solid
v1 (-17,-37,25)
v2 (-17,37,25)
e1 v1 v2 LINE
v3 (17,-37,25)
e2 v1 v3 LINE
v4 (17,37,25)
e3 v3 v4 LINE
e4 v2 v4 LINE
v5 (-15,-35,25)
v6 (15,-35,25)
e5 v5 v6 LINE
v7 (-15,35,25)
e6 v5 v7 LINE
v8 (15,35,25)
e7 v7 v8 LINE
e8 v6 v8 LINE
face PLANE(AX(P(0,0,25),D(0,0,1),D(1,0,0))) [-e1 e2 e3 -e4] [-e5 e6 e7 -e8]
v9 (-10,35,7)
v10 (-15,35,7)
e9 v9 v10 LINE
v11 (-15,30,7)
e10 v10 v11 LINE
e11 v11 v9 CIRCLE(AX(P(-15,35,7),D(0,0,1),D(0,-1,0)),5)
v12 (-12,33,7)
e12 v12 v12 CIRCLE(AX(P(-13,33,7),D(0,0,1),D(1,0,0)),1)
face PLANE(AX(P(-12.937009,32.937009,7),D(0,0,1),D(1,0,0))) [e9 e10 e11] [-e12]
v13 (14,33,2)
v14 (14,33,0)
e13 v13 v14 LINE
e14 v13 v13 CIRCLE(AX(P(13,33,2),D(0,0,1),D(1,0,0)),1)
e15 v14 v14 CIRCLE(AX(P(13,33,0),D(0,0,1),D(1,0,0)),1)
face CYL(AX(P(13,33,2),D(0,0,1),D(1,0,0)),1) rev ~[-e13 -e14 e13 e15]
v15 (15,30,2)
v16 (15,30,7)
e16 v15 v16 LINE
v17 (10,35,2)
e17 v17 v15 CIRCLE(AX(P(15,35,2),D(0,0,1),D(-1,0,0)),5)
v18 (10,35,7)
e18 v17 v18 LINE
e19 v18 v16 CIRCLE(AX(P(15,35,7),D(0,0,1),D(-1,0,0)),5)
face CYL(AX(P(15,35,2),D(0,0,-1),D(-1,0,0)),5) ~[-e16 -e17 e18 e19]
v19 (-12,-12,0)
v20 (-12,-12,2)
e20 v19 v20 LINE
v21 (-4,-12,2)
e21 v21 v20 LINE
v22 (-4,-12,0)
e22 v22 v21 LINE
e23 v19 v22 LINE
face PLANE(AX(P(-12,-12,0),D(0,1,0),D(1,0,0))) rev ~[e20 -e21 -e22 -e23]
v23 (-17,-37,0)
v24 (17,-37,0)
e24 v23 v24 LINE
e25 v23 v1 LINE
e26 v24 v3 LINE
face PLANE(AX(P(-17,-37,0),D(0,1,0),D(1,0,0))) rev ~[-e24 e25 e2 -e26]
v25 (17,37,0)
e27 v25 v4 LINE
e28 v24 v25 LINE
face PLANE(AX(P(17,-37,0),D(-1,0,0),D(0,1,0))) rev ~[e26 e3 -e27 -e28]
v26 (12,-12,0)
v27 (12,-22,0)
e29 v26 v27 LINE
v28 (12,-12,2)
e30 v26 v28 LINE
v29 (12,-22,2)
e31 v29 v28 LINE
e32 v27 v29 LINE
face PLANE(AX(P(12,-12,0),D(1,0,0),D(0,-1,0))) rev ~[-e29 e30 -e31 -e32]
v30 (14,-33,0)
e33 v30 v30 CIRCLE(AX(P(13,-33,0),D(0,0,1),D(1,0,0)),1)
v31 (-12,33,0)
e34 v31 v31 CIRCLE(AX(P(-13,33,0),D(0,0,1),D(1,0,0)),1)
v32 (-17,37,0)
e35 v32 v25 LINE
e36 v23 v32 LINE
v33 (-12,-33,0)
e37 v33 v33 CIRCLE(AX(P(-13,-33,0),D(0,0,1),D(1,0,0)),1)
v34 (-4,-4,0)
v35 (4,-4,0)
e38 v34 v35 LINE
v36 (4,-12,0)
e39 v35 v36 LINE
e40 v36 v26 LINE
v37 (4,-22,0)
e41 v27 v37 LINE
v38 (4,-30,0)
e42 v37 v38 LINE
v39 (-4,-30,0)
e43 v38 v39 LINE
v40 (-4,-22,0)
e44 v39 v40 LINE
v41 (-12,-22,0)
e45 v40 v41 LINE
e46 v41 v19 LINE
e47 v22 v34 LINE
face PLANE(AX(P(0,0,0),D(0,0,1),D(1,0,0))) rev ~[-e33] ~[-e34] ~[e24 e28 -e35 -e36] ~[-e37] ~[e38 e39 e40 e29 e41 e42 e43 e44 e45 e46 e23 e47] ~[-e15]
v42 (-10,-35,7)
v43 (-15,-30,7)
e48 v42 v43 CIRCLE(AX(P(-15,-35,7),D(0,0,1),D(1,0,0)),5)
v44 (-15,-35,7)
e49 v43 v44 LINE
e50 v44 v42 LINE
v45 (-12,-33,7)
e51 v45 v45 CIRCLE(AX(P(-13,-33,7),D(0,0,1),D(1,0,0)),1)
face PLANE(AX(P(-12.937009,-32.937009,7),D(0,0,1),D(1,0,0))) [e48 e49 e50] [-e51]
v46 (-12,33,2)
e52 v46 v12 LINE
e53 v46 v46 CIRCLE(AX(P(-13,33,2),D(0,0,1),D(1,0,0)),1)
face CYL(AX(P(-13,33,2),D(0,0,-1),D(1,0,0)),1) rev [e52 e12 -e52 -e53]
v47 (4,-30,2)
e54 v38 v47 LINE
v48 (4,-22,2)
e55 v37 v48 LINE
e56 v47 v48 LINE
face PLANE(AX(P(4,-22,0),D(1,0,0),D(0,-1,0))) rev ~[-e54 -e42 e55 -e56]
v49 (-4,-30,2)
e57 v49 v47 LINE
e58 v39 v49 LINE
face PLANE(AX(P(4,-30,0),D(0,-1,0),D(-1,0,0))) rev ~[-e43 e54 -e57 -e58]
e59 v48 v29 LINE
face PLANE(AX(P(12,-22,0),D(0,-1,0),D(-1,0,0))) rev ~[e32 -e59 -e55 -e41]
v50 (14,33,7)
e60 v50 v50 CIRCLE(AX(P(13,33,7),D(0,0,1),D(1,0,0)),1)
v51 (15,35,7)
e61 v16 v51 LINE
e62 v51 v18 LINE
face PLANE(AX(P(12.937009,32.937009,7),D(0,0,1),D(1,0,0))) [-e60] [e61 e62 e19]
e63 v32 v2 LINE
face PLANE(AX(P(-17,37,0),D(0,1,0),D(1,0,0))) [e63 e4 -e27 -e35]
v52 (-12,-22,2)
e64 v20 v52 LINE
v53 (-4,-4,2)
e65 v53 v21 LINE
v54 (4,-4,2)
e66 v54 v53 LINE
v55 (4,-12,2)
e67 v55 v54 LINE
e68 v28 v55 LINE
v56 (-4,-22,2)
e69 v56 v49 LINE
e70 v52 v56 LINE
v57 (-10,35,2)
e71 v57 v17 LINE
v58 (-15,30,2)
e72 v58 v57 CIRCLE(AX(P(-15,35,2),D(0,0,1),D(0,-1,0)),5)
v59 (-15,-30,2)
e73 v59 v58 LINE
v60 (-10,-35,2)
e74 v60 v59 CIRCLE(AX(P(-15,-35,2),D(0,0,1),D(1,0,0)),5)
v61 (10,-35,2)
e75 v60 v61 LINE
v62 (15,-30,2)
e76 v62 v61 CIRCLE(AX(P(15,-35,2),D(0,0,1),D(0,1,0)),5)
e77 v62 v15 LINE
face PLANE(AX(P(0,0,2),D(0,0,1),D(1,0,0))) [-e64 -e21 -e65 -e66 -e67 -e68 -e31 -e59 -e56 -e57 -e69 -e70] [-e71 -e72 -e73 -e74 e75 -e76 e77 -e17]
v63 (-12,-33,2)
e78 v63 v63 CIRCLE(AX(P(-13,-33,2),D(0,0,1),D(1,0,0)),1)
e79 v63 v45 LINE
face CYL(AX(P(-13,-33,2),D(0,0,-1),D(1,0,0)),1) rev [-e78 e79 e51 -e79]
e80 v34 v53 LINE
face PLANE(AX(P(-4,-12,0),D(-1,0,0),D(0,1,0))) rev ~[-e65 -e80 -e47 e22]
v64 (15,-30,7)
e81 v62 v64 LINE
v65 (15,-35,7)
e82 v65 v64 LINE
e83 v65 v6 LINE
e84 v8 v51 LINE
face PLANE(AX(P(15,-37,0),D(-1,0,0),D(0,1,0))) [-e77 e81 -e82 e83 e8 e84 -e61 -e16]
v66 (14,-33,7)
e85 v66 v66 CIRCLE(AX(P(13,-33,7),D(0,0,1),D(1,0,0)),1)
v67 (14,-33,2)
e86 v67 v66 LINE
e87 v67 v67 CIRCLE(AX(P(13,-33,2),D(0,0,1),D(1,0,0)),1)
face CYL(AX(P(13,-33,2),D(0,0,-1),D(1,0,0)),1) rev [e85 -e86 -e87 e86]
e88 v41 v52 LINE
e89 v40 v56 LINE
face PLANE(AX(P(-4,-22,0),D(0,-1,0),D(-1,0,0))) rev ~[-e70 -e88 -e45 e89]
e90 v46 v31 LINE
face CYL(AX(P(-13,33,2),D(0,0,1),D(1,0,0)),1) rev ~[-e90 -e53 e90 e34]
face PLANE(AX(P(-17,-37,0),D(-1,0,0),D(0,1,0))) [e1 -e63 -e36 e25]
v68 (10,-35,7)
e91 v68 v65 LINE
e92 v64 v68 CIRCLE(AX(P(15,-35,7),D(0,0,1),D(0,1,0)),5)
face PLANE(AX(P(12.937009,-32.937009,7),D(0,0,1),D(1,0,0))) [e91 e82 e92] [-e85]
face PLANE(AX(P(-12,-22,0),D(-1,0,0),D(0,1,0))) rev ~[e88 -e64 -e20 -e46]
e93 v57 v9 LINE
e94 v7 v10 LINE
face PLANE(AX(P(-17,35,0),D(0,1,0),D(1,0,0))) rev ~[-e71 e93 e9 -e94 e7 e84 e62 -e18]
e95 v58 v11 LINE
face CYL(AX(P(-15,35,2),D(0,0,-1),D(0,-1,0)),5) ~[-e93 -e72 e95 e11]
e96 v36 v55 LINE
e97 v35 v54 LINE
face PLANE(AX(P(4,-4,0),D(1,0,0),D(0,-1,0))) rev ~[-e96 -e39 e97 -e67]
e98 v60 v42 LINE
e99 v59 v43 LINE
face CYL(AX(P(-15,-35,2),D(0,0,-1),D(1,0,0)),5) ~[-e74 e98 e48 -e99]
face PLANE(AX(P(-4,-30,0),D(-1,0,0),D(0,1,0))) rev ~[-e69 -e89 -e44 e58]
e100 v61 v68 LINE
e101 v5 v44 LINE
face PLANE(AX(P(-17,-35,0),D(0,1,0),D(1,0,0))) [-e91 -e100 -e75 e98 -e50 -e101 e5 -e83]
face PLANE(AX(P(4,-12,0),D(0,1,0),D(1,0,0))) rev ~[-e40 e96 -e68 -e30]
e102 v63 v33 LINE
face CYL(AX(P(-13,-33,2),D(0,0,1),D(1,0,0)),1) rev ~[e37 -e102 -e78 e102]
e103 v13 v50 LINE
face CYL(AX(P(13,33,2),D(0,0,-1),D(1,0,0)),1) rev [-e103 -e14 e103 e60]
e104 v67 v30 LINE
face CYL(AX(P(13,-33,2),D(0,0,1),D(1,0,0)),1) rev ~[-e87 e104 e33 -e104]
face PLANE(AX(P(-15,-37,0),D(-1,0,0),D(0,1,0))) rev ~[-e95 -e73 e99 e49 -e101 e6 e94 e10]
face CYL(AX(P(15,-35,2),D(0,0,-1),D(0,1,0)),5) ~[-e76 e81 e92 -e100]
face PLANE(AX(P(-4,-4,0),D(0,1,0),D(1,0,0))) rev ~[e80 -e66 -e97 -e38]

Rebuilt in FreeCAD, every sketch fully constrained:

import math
import FreeCAD as App
import Part
import Sketcher

V = App.Vector


def faces_at(feature, points):
    """Names of the faces that lie closest to the given points."""
    faces = feature.Shape.Faces
    near = lambda p: min(range(len(faces)), key=lambda i: faces[i].distToShape(Part.Vertex(*p))[0])
    return sorted({f"Face{near(p) + 1}" for p in points})


def add_polygon(sketch, points):
    """Adds a closed chain of lines whose ends are joined by coincident constraints."""
    first, n = sketch.GeometryCount, len(points)
    for a, b in zip(points, points[1:] + points[:1]):
        sketch.addGeometry(Part.LineSegment(App.Vector(*a, 0), App.Vector(*b, 0)), False)
    for i in range(n):
        sketch.addConstraint(Sketcher.Constraint("Coincident", first + i, 2, first + (i + 1) % n, 1))

doc = App.newDocument("Part")
body = doc.addObject("PartDesign::Body", "Body")

sketch1 = body.newObject("Sketcher::SketchObject", "Sketch")
sketch1.AttachmentSupport = (doc.getObject("XY_Plane"), [""])
sketch1.MapMode = "FlatFace"
add_polygon(sketch1, [(-17, 37), (-17, -37), (17, -37), (17, 37)])
sketch1.addConstraint([
    Sketcher.Constraint("Vertical", 0),
    Sketcher.Constraint("Horizontal", 1),
    Sketcher.Constraint("Vertical", 2),
    Sketcher.Constraint("Horizontal", 3),
    Sketcher.Constraint("Symmetric", 0, 2, 2, 2, -1, 1),
    Sketcher.Constraint("DistanceX", 1, 1, 1, 2, 34.0),
    Sketcher.Constraint("DistanceY", 0, 2, 0, 1, 74.0),
])
pad1 = body.newObject("PartDesign::Pad", "Pad")
pad1.Profile = sketch1
pad1.Length = 25
doc.recompute()

thickness = body.newObject("PartDesign::Thickness", "Thickness")
thickness.Base = (pad1, faces_at(pad1, [(0, 0, 25)]))
thickness.Value = 2
thickness.Reversed = True
thickness.Join = "Arc"

sketch2 = body.newObject("Sketcher::SketchObject", "Sketch001")
sketch2.AttachmentSupport = (doc.getObject("XY_Plane"), [""])
sketch2.MapMode = "FlatFace"
sketch2.AttachmentOffset = App.Placement(V(0, 0, 2), App.Rotation())
sketch2.addGeometry([
    Part.Circle(V(13, 33, 0), V(0, 0, 1), 1),
    Part.Circle(V(-13, 33, 0), V(0, 0, 1), 1),
    Part.Circle(V(13, -33, 0), V(0, 0, 1), 1),
    Part.Circle(V(-13, -33, 0), V(0, 0, 1), 1),
], False)
sketch2.addConstraint([
    Sketcher.Constraint("Equal", 0, 1),
    Sketcher.Constraint("Equal", 1, 2),
    Sketcher.Constraint("Equal", 2, 3),
    Sketcher.Constraint("Symmetric", 1, 3, 2, 3, -1, 1),
    Sketcher.Constraint("Symmetric", 0, 3, 3, 3, -1, 1),
    Sketcher.Constraint("Symmetric", 0, 3, 1, 3, -2),
    Sketcher.Constraint("Diameter", 0, 2.0),
    Sketcher.Constraint("DistanceX", -1, 1, 0, 3, 13.0),
    Sketcher.Constraint("DistanceY", -1, 1, 0, 3, 33.0),
])
pocket1 = body.newObject("PartDesign::Pocket", "Pocket")
pocket1.Profile = sketch2
pocket1.Length = 25

sketch3 = body.newObject("Sketcher::SketchObject", "Sketch002")
sketch3.AttachmentSupport = (doc.getObject("XY_Plane"), [""])
sketch3.MapMode = "FlatFace"
sketch3.AttachmentOffset = App.Placement(V(0, 0, 2), App.Rotation())
sketch3.addGeometry([
    Part.LineSegment(V(15, -35, 0), V(15, -30, 0)),
    Part.ArcOfCircle(Part.Circle(V(15, -35, 0), V(0, 0, 1), 5), math.radians(90), math.radians(180)),
    Part.LineSegment(V(10, -35, 0), V(15, -35, 0)),
    Part.Circle(V(13, -33, 0), V(0, 0, 1), 1),
    Part.ArcOfCircle(Part.Circle(V(-15, -35, 0), V(0, 0, 1), 5), math.radians(0), math.radians(90)),
    Part.LineSegment(V(-15, -30, 0), V(-15, -35, 0)),
    Part.LineSegment(V(-15, -35, 0), V(-10, -35, 0)),
    Part.Circle(V(-13, -33, 0), V(0, 0, 1), 1),
    Part.ArcOfCircle(Part.Circle(V(-15, 35, 0), V(0, 0, 1), 5), math.radians(-90), math.radians(0)),
    Part.LineSegment(V(-10, 35, 0), V(-15, 35, 0)),
    Part.LineSegment(V(-15, 35, 0), V(-15, 30, 0)),
    Part.Circle(V(-13, 33, 0), V(0, 0, 1), 1),
    Part.LineSegment(V(15, 35, 0), V(10, 35, 0)),
    Part.ArcOfCircle(Part.Circle(V(15, 35, 0), V(0, 0, 1), 5), math.radians(180), math.radians(270)),
    Part.LineSegment(V(15, 30, 0), V(15, 35, 0)),
    Part.Circle(V(13, 33, 0), V(0, 0, 1), 1),
], False)
sketch3.addConstraint([
    Sketcher.Constraint("Coincident", 0, 2, 1, 1),
    Sketcher.Constraint("Coincident", 1, 2, 2, 1),
    Sketcher.Constraint("Coincident", 2, 2, 0, 1),
    Sketcher.Constraint("Coincident", 4, 2, 5, 1),
    Sketcher.Constraint("Coincident", 5, 2, 6, 1),
    Sketcher.Constraint("Coincident", 6, 2, 4, 1),
    Sketcher.Constraint("Coincident", 8, 2, 9, 1),
    Sketcher.Constraint("Coincident", 9, 2, 10, 1),
    Sketcher.Constraint("Coincident", 10, 2, 8, 1),
    Sketcher.Constraint("Coincident", 12, 2, 13, 1),
    Sketcher.Constraint("Coincident", 13, 2, 14, 1),
    Sketcher.Constraint("Coincident", 14, 2, 12, 1),
    Sketcher.Constraint("Vertical", 0),
    Sketcher.Constraint("Horizontal", 2),
    Sketcher.Constraint("Vertical", 5),
    Sketcher.Constraint("Horizontal", 6),
    Sketcher.Constraint("Horizontal", 9),
    Sketcher.Constraint("Vertical", 10),
    Sketcher.Constraint("Horizontal", 12),
    Sketcher.Constraint("Vertical", 14),
    Sketcher.Constraint("Coincident", 2, 2, 1, 3),
    Sketcher.Constraint("Coincident", 5, 2, 4, 3),
    Sketcher.Constraint("Coincident", 9, 2, 8, 3),
    Sketcher.Constraint("Coincident", 14, 2, 13, 3),
    Sketcher.Constraint("Equal", 1, 4),
    Sketcher.Constraint("Equal", 3, 7),
    Sketcher.Constraint("Equal", 4, 8),
    Sketcher.Constraint("Equal", 7, 11),
    Sketcher.Constraint("Equal", 8, 13),
    Sketcher.Constraint("Equal", 11, 15),
    Sketcher.Constraint("Symmetric", 1, 3, 8, 3, -1, 1),
    Sketcher.Constraint("Symmetric", 3, 3, 11, 3, -1, 1),
    Sketcher.Constraint("Symmetric", 4, 3, 13, 3, -1, 1),
    Sketcher.Constraint("Symmetric", 7, 3, 15, 3, -1, 1),
    Sketcher.Constraint("Symmetric", 1, 3, 4, 3, -2),
    Sketcher.Constraint("Symmetric", 3, 3, 7, 3, -2),
    Sketcher.Constraint("Diameter", 3, 2.0),
    Sketcher.Constraint("Radius", 1, 5.0),
    Sketcher.Constraint("DistanceX", -1, 1, 1, 3, 15.0),
    Sketcher.Constraint("DistanceY", 1, 3, -1, 1, 35.0),
    Sketcher.Constraint("DistanceX", -1, 1, 3, 3, 13.0),
    Sketcher.Constraint("DistanceY", 3, 3, -1, 1, 33.0),
])
pad2 = body.newObject("PartDesign::Pad", "Pad001")
pad2.Profile = sketch3
pad2.Length = 5

sketch4 = body.newObject("Sketcher::SketchObject", "Sketch003")
sketch4.AttachmentSupport = (doc.getObject("XY_Plane"), [""])
sketch4.MapMode = "FlatFace"
add_polygon(sketch4, [(4, -22), (4, -30), (-4, -30), (-4, -22), (-12, -22), (-12, -12), (-4, -12), (-4, -4), (4, -4), (4, -12), (12, -12), (12, -22)])
sketch4.addConstraint([
    Sketcher.Constraint("Vertical", 0),
    Sketcher.Constraint("Horizontal", 1),
    Sketcher.Constraint("Vertical", 2),
    Sketcher.Constraint("Horizontal", 3),
    Sketcher.Constraint("Vertical", 4),
    Sketcher.Constraint("Horizontal", 5),
    Sketcher.Constraint("Vertical", 6),
    Sketcher.Constraint("Horizontal", 7),
    Sketcher.Constraint("Vertical", 8),
    Sketcher.Constraint("Horizontal", 9),
    Sketcher.Constraint("Vertical", 10),
    Sketcher.Constraint("Horizontal", 11),
    Sketcher.Constraint("Symmetric", 5, 2, 8, 2, -2),
    Sketcher.Constraint("Symmetric", 3, 2, 10, 2, -2),
    Sketcher.Constraint("Vertical", 2, 2, 5, 2),
    Sketcher.Constraint("Vertical", 0, 2, 7, 2),
    Sketcher.Constraint("Equal", 1, 3),
    Sketcher.Constraint("Equal", 11, 0),
    Sketcher.Constraint("Equal", 2, 6),
    Sketcher.Constraint("DistanceX", 1, 2, 1, 1, 8.0),
    Sketcher.Constraint("DistanceY", 4, 1, 4, 2, 10.0),
    Sketcher.Constraint("DistanceY", 0, 2, -1, 1, 30.0),
])
pocket2 = body.newObject("PartDesign::Pocket", "Pocket001")
pocket2.Profile = sketch4
pocket2.Length = 25
pocket2.Reversed = True

doc.recompute()
